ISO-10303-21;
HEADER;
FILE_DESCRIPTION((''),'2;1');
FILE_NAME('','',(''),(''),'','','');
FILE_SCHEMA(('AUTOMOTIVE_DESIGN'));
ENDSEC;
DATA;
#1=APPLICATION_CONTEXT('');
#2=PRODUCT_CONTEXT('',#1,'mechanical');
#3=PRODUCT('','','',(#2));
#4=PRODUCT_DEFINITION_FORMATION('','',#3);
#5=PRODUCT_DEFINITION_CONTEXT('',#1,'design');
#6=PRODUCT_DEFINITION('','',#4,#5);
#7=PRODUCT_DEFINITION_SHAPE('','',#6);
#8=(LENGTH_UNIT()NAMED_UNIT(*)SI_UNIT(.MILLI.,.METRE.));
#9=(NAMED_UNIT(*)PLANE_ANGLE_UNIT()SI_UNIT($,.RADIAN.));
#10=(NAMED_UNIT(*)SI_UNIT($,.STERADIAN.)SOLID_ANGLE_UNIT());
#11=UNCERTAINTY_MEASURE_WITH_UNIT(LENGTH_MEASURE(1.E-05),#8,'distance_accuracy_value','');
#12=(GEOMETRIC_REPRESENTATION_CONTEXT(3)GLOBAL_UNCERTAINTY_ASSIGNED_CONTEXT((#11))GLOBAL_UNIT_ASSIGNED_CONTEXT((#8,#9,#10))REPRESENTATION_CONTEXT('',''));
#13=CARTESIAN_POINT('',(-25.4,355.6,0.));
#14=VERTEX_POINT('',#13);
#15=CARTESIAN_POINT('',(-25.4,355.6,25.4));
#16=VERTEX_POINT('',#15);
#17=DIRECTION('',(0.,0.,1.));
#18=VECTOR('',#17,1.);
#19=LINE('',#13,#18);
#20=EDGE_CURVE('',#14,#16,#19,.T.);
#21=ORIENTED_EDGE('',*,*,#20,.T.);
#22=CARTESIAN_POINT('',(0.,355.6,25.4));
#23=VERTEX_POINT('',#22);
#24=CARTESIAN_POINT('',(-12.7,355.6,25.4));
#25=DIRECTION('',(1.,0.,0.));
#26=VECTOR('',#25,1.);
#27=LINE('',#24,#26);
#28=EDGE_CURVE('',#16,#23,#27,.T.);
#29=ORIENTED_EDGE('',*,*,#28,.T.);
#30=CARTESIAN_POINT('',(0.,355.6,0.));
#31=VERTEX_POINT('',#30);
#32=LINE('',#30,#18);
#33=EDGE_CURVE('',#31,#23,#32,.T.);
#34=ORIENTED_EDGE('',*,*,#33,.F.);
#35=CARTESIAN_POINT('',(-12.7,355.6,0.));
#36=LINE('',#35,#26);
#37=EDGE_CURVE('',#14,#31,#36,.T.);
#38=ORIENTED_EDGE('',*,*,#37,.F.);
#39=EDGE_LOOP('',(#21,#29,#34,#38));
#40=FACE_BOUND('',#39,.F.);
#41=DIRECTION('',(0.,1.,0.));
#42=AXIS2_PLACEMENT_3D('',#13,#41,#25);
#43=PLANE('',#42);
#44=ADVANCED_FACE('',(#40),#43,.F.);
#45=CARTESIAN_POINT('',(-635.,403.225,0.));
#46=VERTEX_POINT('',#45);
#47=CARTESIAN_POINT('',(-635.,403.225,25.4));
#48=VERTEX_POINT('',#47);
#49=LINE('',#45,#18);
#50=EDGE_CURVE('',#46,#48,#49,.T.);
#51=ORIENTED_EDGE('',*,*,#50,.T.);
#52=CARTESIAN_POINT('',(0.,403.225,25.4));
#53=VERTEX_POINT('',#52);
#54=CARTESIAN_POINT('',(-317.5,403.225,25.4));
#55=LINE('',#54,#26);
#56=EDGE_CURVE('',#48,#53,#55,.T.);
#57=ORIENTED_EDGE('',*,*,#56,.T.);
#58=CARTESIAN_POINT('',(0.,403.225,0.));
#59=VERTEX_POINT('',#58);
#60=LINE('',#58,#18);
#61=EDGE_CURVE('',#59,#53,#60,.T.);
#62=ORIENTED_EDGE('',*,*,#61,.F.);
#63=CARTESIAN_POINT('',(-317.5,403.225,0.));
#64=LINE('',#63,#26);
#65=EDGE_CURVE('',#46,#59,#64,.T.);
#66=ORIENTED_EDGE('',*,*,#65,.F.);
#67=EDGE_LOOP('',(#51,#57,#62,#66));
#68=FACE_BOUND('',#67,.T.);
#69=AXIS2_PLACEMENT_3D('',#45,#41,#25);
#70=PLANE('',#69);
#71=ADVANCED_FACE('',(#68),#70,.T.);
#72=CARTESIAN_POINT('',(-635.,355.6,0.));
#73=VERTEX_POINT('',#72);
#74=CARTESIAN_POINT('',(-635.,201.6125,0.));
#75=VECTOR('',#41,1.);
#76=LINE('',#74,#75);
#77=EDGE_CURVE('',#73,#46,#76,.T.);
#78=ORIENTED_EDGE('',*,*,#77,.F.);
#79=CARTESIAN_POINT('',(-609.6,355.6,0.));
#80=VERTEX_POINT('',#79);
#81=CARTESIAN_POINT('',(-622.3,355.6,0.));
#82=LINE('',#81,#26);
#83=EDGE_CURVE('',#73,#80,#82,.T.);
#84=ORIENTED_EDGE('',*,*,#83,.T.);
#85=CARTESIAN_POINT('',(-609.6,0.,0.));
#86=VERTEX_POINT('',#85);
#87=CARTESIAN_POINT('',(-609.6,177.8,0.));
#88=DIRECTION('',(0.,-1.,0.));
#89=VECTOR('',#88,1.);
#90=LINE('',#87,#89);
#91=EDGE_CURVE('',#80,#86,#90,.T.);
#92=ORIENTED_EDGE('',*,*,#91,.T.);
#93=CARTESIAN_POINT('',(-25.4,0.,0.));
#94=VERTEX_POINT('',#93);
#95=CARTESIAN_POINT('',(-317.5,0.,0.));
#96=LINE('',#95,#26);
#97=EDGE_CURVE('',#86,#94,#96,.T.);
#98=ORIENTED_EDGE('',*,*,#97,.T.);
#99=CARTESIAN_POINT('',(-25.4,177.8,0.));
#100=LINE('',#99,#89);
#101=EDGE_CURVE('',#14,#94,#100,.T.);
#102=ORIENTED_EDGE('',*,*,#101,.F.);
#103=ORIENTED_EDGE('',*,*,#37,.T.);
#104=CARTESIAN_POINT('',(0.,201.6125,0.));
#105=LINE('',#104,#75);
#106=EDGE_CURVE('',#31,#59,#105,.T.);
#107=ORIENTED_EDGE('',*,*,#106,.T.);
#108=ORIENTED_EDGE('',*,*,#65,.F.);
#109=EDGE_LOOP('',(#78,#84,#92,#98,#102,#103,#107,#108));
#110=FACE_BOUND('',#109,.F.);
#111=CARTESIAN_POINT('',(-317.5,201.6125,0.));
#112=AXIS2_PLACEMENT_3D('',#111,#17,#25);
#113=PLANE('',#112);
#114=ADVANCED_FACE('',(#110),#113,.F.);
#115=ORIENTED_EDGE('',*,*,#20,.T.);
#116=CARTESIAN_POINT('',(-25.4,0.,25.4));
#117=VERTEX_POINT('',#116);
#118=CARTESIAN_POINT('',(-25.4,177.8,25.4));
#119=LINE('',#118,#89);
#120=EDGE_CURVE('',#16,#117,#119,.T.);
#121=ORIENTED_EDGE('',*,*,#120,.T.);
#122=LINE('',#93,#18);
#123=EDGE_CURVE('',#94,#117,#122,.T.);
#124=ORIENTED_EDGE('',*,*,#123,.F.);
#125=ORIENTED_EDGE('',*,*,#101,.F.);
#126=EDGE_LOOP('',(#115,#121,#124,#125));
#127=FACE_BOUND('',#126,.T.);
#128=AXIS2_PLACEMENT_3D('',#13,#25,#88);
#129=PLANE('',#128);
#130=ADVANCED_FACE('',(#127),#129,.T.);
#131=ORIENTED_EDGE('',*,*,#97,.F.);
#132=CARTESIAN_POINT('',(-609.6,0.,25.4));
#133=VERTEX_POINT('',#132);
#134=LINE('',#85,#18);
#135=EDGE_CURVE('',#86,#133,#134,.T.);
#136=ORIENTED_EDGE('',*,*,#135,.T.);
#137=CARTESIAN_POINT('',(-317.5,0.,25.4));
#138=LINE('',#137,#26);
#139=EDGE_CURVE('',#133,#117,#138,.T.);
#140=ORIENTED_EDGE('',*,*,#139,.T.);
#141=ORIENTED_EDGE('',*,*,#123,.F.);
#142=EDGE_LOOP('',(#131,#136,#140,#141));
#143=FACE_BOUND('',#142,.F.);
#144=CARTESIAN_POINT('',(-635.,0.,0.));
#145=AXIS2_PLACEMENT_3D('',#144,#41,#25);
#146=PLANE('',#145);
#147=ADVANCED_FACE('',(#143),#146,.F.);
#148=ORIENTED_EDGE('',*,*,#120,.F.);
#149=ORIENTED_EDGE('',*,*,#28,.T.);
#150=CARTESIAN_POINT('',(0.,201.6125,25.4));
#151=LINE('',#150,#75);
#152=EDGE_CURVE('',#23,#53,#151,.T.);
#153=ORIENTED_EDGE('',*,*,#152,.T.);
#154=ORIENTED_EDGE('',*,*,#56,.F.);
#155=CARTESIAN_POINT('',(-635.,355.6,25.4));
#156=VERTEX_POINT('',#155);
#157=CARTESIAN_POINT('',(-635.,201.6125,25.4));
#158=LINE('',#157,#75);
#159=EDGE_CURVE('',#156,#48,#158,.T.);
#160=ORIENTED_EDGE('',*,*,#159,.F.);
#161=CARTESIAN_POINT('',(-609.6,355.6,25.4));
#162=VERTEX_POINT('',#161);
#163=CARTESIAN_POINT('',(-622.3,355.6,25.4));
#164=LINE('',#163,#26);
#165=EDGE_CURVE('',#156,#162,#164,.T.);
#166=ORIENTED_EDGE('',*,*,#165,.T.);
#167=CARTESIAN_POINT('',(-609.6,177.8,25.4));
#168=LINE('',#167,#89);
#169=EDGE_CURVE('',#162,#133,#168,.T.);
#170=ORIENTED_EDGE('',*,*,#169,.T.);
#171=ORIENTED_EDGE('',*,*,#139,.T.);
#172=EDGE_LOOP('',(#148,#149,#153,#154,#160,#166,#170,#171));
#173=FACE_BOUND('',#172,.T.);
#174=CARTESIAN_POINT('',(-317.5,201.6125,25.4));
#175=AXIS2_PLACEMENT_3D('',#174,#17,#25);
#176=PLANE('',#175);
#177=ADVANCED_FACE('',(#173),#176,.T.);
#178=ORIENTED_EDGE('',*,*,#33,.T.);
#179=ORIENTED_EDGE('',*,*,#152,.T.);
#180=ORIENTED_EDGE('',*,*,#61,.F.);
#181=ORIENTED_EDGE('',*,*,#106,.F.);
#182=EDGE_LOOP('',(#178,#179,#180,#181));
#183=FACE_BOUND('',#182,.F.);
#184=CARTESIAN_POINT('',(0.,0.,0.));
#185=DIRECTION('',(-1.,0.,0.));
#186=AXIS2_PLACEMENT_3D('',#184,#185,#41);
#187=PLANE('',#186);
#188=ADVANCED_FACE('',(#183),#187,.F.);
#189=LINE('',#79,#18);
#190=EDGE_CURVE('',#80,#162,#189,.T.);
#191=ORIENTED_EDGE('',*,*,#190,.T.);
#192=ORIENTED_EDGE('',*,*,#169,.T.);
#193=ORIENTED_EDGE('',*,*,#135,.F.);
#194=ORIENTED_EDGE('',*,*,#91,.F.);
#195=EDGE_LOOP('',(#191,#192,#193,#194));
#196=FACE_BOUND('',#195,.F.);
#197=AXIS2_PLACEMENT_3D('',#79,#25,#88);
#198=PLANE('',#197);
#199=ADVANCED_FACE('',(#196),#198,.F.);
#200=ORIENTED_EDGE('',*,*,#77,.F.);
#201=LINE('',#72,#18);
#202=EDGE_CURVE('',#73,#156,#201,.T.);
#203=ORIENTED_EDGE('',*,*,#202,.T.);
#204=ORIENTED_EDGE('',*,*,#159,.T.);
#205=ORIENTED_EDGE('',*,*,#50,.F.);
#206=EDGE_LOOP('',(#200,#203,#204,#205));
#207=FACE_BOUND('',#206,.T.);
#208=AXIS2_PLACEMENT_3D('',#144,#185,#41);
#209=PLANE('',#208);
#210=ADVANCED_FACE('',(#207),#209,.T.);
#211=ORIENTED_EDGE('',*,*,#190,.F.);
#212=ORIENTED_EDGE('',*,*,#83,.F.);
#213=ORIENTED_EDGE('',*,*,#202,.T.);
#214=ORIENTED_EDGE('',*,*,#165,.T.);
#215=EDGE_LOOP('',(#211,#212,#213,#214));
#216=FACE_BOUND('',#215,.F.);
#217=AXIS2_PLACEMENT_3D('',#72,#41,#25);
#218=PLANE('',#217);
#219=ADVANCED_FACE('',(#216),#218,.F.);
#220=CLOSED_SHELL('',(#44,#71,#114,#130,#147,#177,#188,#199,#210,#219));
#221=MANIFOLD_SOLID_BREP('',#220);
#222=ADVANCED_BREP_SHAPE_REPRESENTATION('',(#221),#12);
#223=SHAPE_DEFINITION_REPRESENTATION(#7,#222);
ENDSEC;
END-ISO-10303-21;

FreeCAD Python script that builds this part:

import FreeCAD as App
import Part
import Sketcher

V = App.Vector
Q = App.Units.Quantity


def add_polygon(sketch, points):
    """Adds a closed chain of lines whose ends are joined by coincident constraints."""
    first, n = sketch.GeometryCount, len(points)
    for a, b in zip(points, points[1:] + points[:1]):
        sketch.addGeometry(Part.LineSegment(App.Vector(*a, 0), App.Vector(*b, 0)), False)
    for i in range(n):
        sketch.addConstraint(Sketcher.Constraint("Coincident", first + i, 2, first + (i + 1) % n, 1))

doc = App.newDocument("Part")
body = doc.addObject("PartDesign::Body", "Body")

sketch1 = body.newObject("Sketcher::SketchObject", "Sketch")
sketch1.AttachmentSupport = (doc.getObject("XY_Plane"), [""])
sketch1.MapMode = "FlatFace"
add_polygon(sketch1, [(-635, 403), (-635, 0), (0, 0), (0, 403)])
sketch1.addConstraint([
    Sketcher.Constraint("Vertical", 0),
    Sketcher.Constraint("Horizontal", 1),
    Sketcher.Constraint("Vertical", 2),
    Sketcher.Constraint("Horizontal", 3),
    Sketcher.Constraint("Coincident", 1, 2, -1, 1),
    Sketcher.Constraint("DistanceX", 1, 1, 1, 2, Q("25 in")),
    Sketcher.Constraint("DistanceY", 0, 2, 0, 1, Q("15.875 in")),
])
pad1 = body.newObject("PartDesign::Pad", "Pad")
pad1.Profile = sketch1
pad1.Length = Q("1 in")

sketch2 = body.newObject("Sketcher::SketchObject", "Sketch001")
sketch2.AttachmentSupport = (doc.getObject("XY_Plane"), [""])
sketch2.MapMode = "FlatFace"
add_polygon(sketch2, [(-25, 0), (-25, 356), (0, 356), (0, 0)])
add_polygon(sketch2, [(-635, 0), (-635, 356), (-610, 356), (-610, 0)])
sketch2.addConstraint([
    Sketcher.Constraint("Vertical", 0),
    Sketcher.Constraint("Horizontal", 1),
    Sketcher.Constraint("Vertical", 2),
    Sketcher.Constraint("Horizontal", 3),
    Sketcher.Constraint("Vertical", 4),
    Sketcher.Constraint("Horizontal", 5),
    Sketcher.Constraint("Vertical", 6),
    Sketcher.Constraint("Horizontal", 7),
    Sketcher.Constraint("Coincident", 2, 2, -1, 1),
    Sketcher.Constraint("PointOnObject", 6, 2, -1),
    Sketcher.Constraint("Horizontal", 1, 2, 4, 2),
    Sketcher.Constraint("Equal", 3, 5),
    Sketcher.Constraint("DistanceX", 1, 1, 1, 2, Q("1 in")),
    Sketcher.Constraint("DistanceY", 0, 1, 0, 2, Q("14 in")),
    Sketcher.Constraint("DistanceX", 4, 2, -1, 1, Q("25 in")),
])
pocket1 = body.newObject("PartDesign::Pocket", "Pocket")
pocket1.Profile = sketch2
pocket1.Type = "ThroughAll"
pocket1.Reversed = True

doc.recompute()
